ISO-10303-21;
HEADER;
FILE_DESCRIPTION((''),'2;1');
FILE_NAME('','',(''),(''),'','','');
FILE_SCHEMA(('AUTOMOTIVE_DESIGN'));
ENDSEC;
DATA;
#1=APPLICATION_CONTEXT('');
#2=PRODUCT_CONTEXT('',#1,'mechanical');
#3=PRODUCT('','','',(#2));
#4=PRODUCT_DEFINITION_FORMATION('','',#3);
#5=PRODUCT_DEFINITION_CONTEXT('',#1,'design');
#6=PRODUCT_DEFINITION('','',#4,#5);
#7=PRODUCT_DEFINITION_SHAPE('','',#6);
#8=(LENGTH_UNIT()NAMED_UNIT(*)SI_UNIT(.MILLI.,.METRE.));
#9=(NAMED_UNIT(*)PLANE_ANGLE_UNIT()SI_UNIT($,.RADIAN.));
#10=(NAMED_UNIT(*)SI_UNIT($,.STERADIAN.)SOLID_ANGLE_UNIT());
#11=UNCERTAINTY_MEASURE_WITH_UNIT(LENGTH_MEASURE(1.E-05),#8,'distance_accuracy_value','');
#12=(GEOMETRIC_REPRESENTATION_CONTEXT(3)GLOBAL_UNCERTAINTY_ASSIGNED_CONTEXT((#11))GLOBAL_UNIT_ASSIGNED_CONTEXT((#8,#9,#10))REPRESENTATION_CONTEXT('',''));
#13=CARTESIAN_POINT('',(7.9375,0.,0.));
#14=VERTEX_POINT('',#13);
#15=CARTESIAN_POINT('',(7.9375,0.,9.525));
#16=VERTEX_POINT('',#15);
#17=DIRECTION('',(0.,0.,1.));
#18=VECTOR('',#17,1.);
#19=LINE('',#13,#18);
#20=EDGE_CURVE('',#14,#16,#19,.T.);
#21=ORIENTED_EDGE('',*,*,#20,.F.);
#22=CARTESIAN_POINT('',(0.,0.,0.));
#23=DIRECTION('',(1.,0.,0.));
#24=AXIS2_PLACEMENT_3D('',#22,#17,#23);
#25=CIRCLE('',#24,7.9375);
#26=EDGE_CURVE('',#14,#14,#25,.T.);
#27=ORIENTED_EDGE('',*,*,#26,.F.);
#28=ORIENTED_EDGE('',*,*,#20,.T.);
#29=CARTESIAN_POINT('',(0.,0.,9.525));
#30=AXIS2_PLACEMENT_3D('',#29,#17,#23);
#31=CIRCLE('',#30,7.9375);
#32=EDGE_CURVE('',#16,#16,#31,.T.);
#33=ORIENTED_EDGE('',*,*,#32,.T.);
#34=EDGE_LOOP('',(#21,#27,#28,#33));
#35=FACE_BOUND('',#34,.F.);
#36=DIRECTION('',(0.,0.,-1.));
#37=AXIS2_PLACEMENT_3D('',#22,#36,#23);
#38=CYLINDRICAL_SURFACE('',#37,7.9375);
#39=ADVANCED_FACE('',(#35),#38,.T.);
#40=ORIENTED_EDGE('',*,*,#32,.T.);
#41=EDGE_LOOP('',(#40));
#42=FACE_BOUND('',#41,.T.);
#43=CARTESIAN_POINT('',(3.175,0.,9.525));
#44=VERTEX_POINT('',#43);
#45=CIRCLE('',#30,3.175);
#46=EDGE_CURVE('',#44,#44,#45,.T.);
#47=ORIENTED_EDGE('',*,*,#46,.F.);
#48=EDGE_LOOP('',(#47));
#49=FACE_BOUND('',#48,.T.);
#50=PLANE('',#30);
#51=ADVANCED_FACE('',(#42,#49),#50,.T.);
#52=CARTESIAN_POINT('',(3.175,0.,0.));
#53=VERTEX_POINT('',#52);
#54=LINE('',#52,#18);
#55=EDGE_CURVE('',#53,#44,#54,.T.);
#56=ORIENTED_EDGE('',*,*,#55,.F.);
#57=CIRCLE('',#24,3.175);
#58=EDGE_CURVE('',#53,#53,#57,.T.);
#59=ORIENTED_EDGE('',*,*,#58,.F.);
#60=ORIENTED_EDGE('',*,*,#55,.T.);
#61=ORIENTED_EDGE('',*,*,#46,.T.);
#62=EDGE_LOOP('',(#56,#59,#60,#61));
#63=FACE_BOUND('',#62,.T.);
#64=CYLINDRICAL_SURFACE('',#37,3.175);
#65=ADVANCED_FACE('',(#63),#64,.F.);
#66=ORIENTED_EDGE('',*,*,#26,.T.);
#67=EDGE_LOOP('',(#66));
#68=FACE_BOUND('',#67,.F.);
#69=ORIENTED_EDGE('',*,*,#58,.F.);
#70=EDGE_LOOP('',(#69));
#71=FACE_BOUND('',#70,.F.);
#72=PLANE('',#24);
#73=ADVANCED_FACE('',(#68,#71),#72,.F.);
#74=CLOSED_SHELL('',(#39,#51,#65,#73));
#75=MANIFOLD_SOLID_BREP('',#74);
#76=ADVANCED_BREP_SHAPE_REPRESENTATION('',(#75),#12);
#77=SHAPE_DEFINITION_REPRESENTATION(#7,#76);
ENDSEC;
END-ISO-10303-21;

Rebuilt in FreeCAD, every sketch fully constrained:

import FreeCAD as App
import Part
import Sketcher
Q = App.Units.Quantity

doc = App.newDocument("Part")
body = doc.addObject("PartDesign::Body", "Body")

# Sketch on XY plane
sketch1 = body.newObject("Sketcher::SketchObject", "Sketch")
sketch1.AttachmentSupport = (doc.getObject("XY_Plane"), [""])
sketch1.MapMode = "FlatFace"
sketch1.addGeometry([
    Part.Circle(App.Vector(0, 0, 0), App.Vector(0, 0, 1), 7.9),
    Part.Circle(App.Vector(0, 0, 0), App.Vector(0, 0, 1), 3.2),
], False)
sketch1.addConstraint([
    Sketcher.Constraint("Coincident", 0, 3, -1, 1),
    Sketcher.Constraint("Coincident", 1, 3, -1, 1),
    Sketcher.Constraint("Diameter", 1, Q("0.25 in")),
    Sketcher.Constraint("Diameter", 0, Q("0.625 in")),
])
pad1 = body.newObject("PartDesign::Pad", "Pad")
pad1.Profile = sketch1
pad1.Length = Q("0.375 in")

doc.recompute()
